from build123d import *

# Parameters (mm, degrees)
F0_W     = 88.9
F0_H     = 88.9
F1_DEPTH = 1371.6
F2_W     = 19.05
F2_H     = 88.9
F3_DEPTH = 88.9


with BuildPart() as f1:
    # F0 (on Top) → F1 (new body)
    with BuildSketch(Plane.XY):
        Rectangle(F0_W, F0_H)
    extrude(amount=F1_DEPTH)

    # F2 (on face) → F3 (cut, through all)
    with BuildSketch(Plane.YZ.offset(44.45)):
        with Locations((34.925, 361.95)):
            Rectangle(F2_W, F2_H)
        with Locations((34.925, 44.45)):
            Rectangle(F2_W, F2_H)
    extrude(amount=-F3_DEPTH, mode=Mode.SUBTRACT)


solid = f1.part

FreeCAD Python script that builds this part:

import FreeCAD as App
import Part
import Sketcher
from FreeCAD import Vector
Q = App.Units.Quantity

doc = App.newDocument("Part")
body = doc.addObject("PartDesign::Body", "Body")

# Sketch on XY plane
sketch1 = body.newObject("Sketcher::SketchObject", "Sketch")
sketch1.AttachmentSupport = (doc.getObject("XY_Plane"), [""])
sketch1.MapMode = "FlatFace"
sketch1.addGeometry(Part.LineSegment(Vector(-44.45, 44.45, 0), Vector(-44.45, -44.45, 0)), False)
sketch1.addGeometry(Part.LineSegment(Vector(-44.45, -44.45, 0), Vector(44.45, -44.45, 0)), False)
sketch1.addGeometry(Part.LineSegment(Vector(44.45, -44.45, 0), Vector(44.45, 44.45, 0)), False)
sketch1.addGeometry(Part.LineSegment(Vector(44.45, 44.45, 0), Vector(-44.45, 44.45, 0)), False)
sketch1.addConstraint(Sketcher.Constraint("Coincident", 0, 2, 1, 1))
sketch1.addConstraint(Sketcher.Constraint("Coincident", 1, 2, 2, 1))
sketch1.addConstraint(Sketcher.Constraint("Coincident", 2, 2, 3, 1))
sketch1.addConstraint(Sketcher.Constraint("Coincident", 3, 2, 0, 1))
sketch1.addConstraint(Sketcher.Constraint("Vertical", 0))
sketch1.addConstraint(Sketcher.Constraint("Horizontal", 1))
sketch1.addConstraint(Sketcher.Constraint("Vertical", 2))
sketch1.addConstraint(Sketcher.Constraint("Horizontal", 3))
sketch1.addConstraint(Sketcher.Constraint("Symmetric", 0, 2, 2, 2, -1, 1))
sketch1.addConstraint(Sketcher.Constraint("Equal", 3, 0))
sketch1.addConstraint(Sketcher.Constraint("DistanceX", 1, 1, 1, 2, Q("3.5 in")))
pad1 = body.newObject("PartDesign::Pad", "Pad")
pad1.Profile = sketch1
pad1.Length = Q("54 in")

# Sketch on YZ plane
sketch2 = body.newObject("Sketcher::SketchObject", "Sketch001")
sketch2.AttachmentSupport = (doc.getObject("YZ_Plane"), [""])
sketch2.MapMode = "FlatFace"
sketch2.AttachmentOffset = App.Placement(Vector(0, 0, 1.75 * 25.4), App.Rotation())
sketch2.addGeometry(Part.LineSegment(Vector(25.4, 406.4, 0), Vector(25.4, 317.5, 0)), False)
sketch2.addGeometry(Part.LineSegment(Vector(25.4, 317.5, 0), Vector(44.45, 317.5, 0)), False)
sketch2.addGeometry(Part.LineSegment(Vector(44.45, 317.5, 0), Vector(44.45, 406.4, 0)), False)
sketch2.addGeometry(Part.LineSegment(Vector(44.45, 406.4, 0), Vector(25.4, 406.4, 0)), False)
sketch2.addGeometry(Part.LineSegment(Vector(25.4, 88.9, 0), Vector(25.4, 0, 0)), False)
sketch2.addGeometry(Part.LineSegment(Vector(25.4, 0, 0), Vector(44.45, 0, 0)), False)
sketch2.addGeometry(Part.LineSegment(Vector(44.45, 0, 0), Vector(44.45, 88.9, 0)), False)
sketch2.addGeometry(Part.LineSegment(Vector(44.45, 88.9, 0), Vector(25.4, 88.9, 0)), False)
sketch2.addConstraint(Sketcher.Constraint("Coincident", 0, 2, 1, 1))
sketch2.addConstraint(Sketcher.Constraint("Coincident", 1, 2, 2, 1))
sketch2.addConstraint(Sketcher.Constraint("Coincident", 2, 2, 3, 1))
sketch2.addConstraint(Sketcher.Constraint("Coincident", 3, 2, 0, 1))
sketch2.addConstraint(Sketcher.Constraint("Coincident", 4, 2, 5, 1))
sketch2.addConstraint(Sketcher.Constraint("Coincident", 5, 2, 6, 1))
sketch2.addConstraint(Sketcher.Constraint("Coincident", 6, 2, 7, 1))
sketch2.addConstraint(Sketcher.Constraint("Coincident", 7, 2, 4, 1))
sketch2.addConstraint(Sketcher.Constraint("Vertical", 0))
sketch2.addConstraint(Sketcher.Constraint("Horizontal", 1))
sketch2.addConstraint(Sketcher.Constraint("Vertical", 2))
sketch2.addConstraint(Sketcher.Constraint("Horizontal", 3))
sketch2.addConstraint(Sketcher.Constraint("Vertical", 4))
sketch2.addConstraint(Sketcher.Constraint("Horizontal", 5))
sketch2.addConstraint(Sketcher.Constraint("Vertical", 6))
sketch2.addConstraint(Sketcher.Constraint("Horizontal", 7))
sketch2.addConstraint(Sketcher.Constraint("PointOnObject", 4, 2, -1))
sketch2.addConstraint(Sketcher.Constraint("Vertical", 3, 2, 4, 2))
sketch2.addConstraint(Sketcher.Constraint("Vertical", 2, 2, 5, 2))
sketch2.addConstraint(Sketcher.Constraint("Equal", 2, 4))
sketch2.addConstraint(Sketcher.Constraint("DistanceY", 0, 2, 0, 1, Q("3.5 in")))
sketch2.addConstraint(Sketcher.Constraint("DistanceX", -1, 1, 0, 2, Q("1 in")))
sketch2.addConstraint(Sketcher.Constraint("DistanceY", -1, 1, 2, 2, Q("16 in")))
sketch2.addConstraint(Sketcher.Constraint("DistanceX", 1, 1, 1, 2, Q("0.75 in")))
pocket1 = body.newObject("PartDesign::Pocket", "Pocket")
pocket1.Profile = sketch2
pocket1.Type = "ThroughAll"

doc.recompute()
